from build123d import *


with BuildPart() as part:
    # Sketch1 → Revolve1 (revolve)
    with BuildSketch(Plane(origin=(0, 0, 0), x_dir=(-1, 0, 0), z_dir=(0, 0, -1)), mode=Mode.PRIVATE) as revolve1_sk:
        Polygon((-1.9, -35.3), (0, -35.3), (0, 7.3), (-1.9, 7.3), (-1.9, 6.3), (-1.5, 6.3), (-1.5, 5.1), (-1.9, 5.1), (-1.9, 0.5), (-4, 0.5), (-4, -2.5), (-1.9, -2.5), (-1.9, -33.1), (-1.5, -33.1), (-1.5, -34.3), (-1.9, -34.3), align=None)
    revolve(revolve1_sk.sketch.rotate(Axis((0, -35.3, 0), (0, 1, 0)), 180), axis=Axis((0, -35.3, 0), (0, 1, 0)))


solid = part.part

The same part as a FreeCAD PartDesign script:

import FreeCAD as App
import Part
import Sketcher

V = App.Vector
Q = App.Units.Quantity

doc = App.newDocument("Part")
body = doc.addObject("PartDesign::Body", "Body")

# Sketch on XY plane
sketch1 = body.newObject("Sketcher::SketchObject", "Sketch")
sketch1.AttachmentSupport = (doc.getObject("XY_Plane"), [""])
sketch1.MapMode = "FlatFace"
sketch1.addGeometry(Part.LineSegment(V(1.9, -35.3, 0), V(0, -35.3, 0)), False)
sketch1.addGeometry(Part.LineSegment(V(0, -35.3, 0), V(0, 7.3, 0)), False)
sketch1.addGeometry(Part.LineSegment(V(0, 7.3, 0), V(1.9, 7.3, 0)), False)
sketch1.addGeometry(Part.LineSegment(V(1.9, 7.3, 0), V(1.9, 6.3, 0)), False)
sketch1.addGeometry(Part.LineSegment(V(1.9, 6.3, 0), V(1.5, 6.3, 0)), False)
sketch1.addGeometry(Part.LineSegment(V(1.5, 6.3, 0), V(1.5, 5.1, 0)), False)
sketch1.addGeometry(Part.LineSegment(V(1.5, 5.1, 0), V(1.9, 5.1, 0)), False)
sketch1.addGeometry(Part.LineSegment(V(1.9, 5.1, 0), V(1.9, 0.5, 0)), False)
sketch1.addGeometry(Part.LineSegment(V(1.9, 0.5, 0), V(4, 0.5, 0)), False)
sketch1.addGeometry(Part.LineSegment(V(4, 0.5, 0), V(4, -2.5, 0)), False)
sketch1.addGeometry(Part.LineSegment(V(4, -2.5, 0), V(1.9, -2.5, 0)), False)
sketch1.addGeometry(Part.LineSegment(V(1.9, -2.5, 0), V(1.9, -33.1, 0)), False)
sketch1.addGeometry(Part.LineSegment(V(1.9, -33.1, 0), V(1.5, -33.1, 0)), False)
sketch1.addGeometry(Part.LineSegment(V(1.5, -33.1, 0), V(1.5, -34.3, 0)), False)
sketch1.addGeometry(Part.LineSegment(V(1.5, -34.3, 0), V(1.9, -34.3, 0)), False)
sketch1.addGeometry(Part.LineSegment(V(1.9, -34.3, 0), V(1.9, -35.3, 0)), False)
sketch1.addConstraint(Sketcher.Constraint("Coincident", 0, 2, 1, 1))
sketch1.addConstraint(Sketcher.Constraint("Coincident", 1, 2, 2, 1))
sketch1.addConstraint(Sketcher.Constraint("Coincident", 2, 2, 3, 1))
sketch1.addConstraint(Sketcher.Constraint("Coincident", 3, 2, 4, 1))
sketch1.addConstraint(Sketcher.Constraint("Coincident", 4, 2, 5, 1))
sketch1.addConstraint(Sketcher.Constraint("Coincident", 5, 2, 6, 1))
sketch1.addConstraint(Sketcher.Constraint("Coincident", 6, 2, 7, 1))
sketch1.addConstraint(Sketcher.Constraint("Coincident", 7, 2, 8, 1))
sketch1.addConstraint(Sketcher.Constraint("Coincident", 8, 2, 9, 1))
sketch1.addConstraint(Sketcher.Constraint("Coincident", 9, 2, 10, 1))
sketch1.addConstraint(Sketcher.Constraint("Coincident", 10, 2, 11, 1))
sketch1.addConstraint(Sketcher.Constraint("Coincident", 11, 2, 12, 1))
sketch1.addConstraint(Sketcher.Constraint("Coincident", 12, 2, 13, 1))
sketch1.addConstraint(Sketcher.Constraint("Coincident", 13, 2, 14, 1))
sketch1.addConstraint(Sketcher.Constraint("Coincident", 14, 2, 15, 1))
sketch1.addConstraint(Sketcher.Constraint("Coincident", 15, 2, 0, 1))
sketch1.addConstraint(Sketcher.Constraint("Horizontal", 0))
sketch1.addConstraint(Sketcher.Constraint("Vertical", 1))
sketch1.addConstraint(Sketcher.Constraint("Horizontal", 2))
sketch1.addConstraint(Sketcher.Constraint("Vertical", 3))
sketch1.addConstraint(Sketcher.Constraint("Horizontal", 4))
sketch1.addConstraint(Sketcher.Constraint("Vertical", 5))
sketch1.addConstraint(Sketcher.Constraint("Horizontal", 6))
sketch1.addConstraint(Sketcher.Constraint("Vertical", 7))
sketch1.addConstraint(Sketcher.Constraint("Horizontal", 8))
sketch1.addConstraint(Sketcher.Constraint("Vertical", 9))
sketch1.addConstraint(Sketcher.Constraint("Horizontal", 10))
sketch1.addConstraint(Sketcher.Constraint("Vertical", 11))
sketch1.addConstraint(Sketcher.Constraint("Horizontal", 12))
sketch1.addConstraint(Sketcher.Constraint("Vertical", 13))
sketch1.addConstraint(Sketcher.Constraint("Horizontal", 14))
sketch1.addConstraint(Sketcher.Constraint("Vertical", 15))
sketch1.addConstraint(Sketcher.Constraint("PointOnObject", 0, 2, -2))
sketch1.addConstraint(Sketcher.Constraint("Vertical", 3, 2, 6, 2))
sketch1.addConstraint(Sketcher.Constraint("Vertical", 7, 2, 10, 2))
sketch1.addConstraint(Sketcher.Constraint("Vertical", 5, 2, 12, 2))
sketch1.addConstraint(Sketcher.Constraint("Vertical", 11, 2, 14, 2))
sketch1.addConstraint(Sketcher.Constraint("Equal", 5, 13))
sketch1.addConstraint(Sketcher.Constraint("Equal", 3, 15))
sketch1.addConstraint(Sketcher.Constraint("DistanceY", 3, 2, 3, 1, Q("1 mm")))
sketch1.addConstraint(Sketcher.Constraint("DistanceY", 9, 2, 9, 1, Q("3 mm")))
sketch1.addConstraint(Sketcher.Constraint("DistanceX", 0, 2, 0, 1, Q("1.9 mm")))
sketch1.addConstraint(Sketcher.Constraint("DistanceX", 4, 2, 4, 1, Q("0.4 mm")))
sketch1.addConstraint(Sketcher.Constraint("DistanceX", 8, 1, 8, 2, Q("2.1 mm")))
sketch1.addConstraint(Sketcher.Constraint("DistanceY", 1, 1, 1, 2, Q("42.6 mm")))
sketch1.addConstraint(Sketcher.Constraint("DistanceY", 5, 2, 5, 1, Q("1.2 mm")))
sketch1.addConstraint(Sketcher.Constraint("DistanceY", 7, 2, 7, 1, Q("4.6 mm")))
sketch1.addConstraint(Sketcher.Constraint("DistanceY", 0, 2, -1, 1, Q("35.3 mm")))
revolution = body.newObject("PartDesign::Revolution", "Revolution")
revolution.Profile = sketch1
revolution.ReferenceAxis = (sketch1, ["V_Axis"])
revolution.Angle = 360

doc.recompute()
